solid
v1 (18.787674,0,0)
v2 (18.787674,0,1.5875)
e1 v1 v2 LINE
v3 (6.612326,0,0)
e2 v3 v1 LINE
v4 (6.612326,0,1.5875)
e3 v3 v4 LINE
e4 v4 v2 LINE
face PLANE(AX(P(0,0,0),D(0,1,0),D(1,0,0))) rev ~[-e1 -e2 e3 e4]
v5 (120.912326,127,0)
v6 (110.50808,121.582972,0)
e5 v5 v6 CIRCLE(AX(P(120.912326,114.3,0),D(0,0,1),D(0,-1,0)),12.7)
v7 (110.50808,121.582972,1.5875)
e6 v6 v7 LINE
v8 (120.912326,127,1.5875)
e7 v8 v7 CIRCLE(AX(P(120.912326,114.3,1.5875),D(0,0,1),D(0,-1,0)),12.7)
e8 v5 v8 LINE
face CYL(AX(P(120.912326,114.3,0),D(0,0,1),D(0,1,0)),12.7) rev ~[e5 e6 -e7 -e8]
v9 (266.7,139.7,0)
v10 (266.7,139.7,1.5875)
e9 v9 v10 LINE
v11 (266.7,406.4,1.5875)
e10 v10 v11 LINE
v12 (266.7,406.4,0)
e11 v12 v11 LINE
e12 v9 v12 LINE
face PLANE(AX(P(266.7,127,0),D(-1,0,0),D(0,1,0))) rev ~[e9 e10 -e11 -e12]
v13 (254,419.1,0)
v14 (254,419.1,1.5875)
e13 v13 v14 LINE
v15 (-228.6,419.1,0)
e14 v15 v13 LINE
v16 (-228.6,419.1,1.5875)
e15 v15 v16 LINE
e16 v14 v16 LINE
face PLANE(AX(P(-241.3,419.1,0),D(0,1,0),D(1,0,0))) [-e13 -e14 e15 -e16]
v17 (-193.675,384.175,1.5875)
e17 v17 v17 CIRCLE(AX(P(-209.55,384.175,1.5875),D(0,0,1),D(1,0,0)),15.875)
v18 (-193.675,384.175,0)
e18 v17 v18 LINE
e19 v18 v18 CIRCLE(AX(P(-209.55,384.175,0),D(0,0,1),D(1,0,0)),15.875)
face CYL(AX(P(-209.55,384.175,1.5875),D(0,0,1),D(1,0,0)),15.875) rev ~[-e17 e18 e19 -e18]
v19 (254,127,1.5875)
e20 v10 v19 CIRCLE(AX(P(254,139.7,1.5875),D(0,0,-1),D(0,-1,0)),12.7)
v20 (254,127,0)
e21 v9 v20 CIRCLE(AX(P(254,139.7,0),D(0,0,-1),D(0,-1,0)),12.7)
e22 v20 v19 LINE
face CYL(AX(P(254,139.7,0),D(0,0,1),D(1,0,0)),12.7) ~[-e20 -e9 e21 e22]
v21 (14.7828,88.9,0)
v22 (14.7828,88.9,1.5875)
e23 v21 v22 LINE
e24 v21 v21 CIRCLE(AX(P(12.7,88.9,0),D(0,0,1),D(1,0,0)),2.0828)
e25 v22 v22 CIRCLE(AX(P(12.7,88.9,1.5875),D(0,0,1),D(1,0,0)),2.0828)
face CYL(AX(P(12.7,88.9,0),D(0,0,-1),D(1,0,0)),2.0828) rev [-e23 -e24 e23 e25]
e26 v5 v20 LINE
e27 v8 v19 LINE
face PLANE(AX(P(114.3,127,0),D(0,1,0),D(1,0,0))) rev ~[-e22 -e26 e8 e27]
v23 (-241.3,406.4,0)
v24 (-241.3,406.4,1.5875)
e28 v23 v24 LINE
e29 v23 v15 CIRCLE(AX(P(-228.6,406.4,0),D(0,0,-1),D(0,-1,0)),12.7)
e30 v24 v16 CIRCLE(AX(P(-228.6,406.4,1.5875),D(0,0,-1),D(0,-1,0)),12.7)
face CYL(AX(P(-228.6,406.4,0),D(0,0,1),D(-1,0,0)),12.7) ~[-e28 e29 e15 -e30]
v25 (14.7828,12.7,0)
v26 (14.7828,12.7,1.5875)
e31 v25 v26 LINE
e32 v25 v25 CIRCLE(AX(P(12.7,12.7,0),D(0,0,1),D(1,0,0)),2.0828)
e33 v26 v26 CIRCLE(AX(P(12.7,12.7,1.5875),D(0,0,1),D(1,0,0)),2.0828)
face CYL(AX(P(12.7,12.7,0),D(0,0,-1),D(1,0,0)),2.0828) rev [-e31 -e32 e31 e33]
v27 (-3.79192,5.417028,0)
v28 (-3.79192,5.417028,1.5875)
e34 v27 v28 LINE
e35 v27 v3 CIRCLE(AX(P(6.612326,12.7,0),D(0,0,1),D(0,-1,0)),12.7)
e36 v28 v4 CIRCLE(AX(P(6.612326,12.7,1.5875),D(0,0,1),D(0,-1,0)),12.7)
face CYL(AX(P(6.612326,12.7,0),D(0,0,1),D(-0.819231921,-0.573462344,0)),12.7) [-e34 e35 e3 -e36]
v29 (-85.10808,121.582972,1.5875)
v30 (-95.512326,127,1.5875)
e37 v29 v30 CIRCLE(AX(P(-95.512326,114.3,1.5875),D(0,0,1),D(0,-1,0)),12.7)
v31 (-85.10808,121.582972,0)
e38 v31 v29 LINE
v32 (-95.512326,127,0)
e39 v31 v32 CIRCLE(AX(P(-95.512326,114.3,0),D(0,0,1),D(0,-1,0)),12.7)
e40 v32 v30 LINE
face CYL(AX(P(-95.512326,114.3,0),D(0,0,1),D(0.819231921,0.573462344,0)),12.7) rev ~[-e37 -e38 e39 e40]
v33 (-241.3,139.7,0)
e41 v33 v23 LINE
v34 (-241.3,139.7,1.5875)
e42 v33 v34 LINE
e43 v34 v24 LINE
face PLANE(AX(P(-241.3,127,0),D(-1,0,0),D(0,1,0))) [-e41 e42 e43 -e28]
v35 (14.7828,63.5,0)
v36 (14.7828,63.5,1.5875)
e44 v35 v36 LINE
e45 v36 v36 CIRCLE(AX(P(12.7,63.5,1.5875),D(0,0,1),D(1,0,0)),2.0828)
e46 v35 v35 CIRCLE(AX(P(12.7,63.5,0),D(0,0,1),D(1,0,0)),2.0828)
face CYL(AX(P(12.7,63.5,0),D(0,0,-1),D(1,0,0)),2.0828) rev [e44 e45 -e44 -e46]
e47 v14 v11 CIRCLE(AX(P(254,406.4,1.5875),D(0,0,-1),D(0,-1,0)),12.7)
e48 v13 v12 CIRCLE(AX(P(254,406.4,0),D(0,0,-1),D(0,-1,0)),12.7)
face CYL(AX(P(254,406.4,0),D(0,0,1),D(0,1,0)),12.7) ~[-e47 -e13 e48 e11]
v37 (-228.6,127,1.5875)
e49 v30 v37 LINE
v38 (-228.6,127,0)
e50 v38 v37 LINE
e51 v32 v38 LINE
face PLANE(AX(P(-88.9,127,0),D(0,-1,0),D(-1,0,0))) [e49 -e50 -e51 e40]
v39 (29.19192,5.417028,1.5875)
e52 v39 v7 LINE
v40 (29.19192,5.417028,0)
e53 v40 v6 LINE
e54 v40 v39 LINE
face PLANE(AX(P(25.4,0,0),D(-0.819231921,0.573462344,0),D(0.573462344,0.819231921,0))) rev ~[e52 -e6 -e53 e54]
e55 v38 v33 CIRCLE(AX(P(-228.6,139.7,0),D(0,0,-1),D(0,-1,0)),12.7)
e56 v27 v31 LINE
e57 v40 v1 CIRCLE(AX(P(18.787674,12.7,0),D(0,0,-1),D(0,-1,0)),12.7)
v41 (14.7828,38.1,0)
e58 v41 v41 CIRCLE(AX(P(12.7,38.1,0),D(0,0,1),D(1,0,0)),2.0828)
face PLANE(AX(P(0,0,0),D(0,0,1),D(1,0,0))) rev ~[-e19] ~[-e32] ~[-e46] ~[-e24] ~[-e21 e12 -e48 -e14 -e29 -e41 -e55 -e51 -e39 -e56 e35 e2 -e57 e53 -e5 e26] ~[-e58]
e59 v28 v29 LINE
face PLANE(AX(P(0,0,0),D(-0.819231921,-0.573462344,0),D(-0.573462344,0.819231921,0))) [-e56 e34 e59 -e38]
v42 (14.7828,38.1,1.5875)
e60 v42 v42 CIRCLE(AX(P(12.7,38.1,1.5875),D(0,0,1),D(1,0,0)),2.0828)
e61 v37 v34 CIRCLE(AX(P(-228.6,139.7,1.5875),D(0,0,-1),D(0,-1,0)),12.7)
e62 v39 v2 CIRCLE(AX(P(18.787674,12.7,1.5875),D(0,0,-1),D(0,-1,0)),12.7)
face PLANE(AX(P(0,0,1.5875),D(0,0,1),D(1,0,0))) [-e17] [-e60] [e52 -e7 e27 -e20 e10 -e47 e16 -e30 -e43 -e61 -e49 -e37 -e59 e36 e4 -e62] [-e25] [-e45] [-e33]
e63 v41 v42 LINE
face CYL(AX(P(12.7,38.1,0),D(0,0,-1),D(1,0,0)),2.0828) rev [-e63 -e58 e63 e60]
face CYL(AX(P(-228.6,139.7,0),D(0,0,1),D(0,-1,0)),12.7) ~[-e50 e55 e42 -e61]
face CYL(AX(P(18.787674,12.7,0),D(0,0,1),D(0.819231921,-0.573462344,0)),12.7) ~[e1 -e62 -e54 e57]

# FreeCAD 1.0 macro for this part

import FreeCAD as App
import Part
import Sketcher

V = App.Vector
Q = App.Units.Quantity


def edges_at(feature, points):
    """Names of the edges that pass closest to the given points."""
    edges = feature.Shape.Edges
    near = lambda p: min(range(len(edges)), key=lambda i: edges[i].distToShape(Part.Vertex(*p))[0])
    return sorted({f"Edge{near(p) + 1}" for p in points})


def add_polygon(sketch, points):
    """Adds a closed chain of lines whose ends are joined by coincident constraints."""
    first, n = sketch.GeometryCount, len(points)
    for a, b in zip(points, points[1:] + points[:1]):
        sketch.addGeometry(Part.LineSegment(App.Vector(*a, 0), App.Vector(*b, 0)), False)
    for i in range(n):
        sketch.addConstraint(Sketcher.Constraint("Coincident", first + i, 2, first + (i + 1) % n, 1))

doc = App.newDocument("Part")
body = doc.addObject("PartDesign::Body", "Body")

# Sketch on XY plane
sketch1 = body.newObject("Sketcher::SketchObject", "Sketch")
sketch1.AttachmentSupport = (doc.getObject("XY_Plane"), [""])
sketch1.MapMode = "FlatFace"
add_polygon(sketch1, [(-88.9, 127), (0, 0), (25.4, 0), (114.3, 127), (266.7, 127), (266.7, 419.1), (-241.3, 419.1), (-241.3, 127)])  # lines 0-7
sketch1.addGeometry(Part.Circle(V(12.7, 12.7, 0), V(0, 0, 1), 2.1), False)  # 8
sketch1.addGeometry(Part.Circle(V(12.7, 38.1, 0), V(0, 0, 1), 2.1), False)  # 9
sketch1.addGeometry(Part.Circle(V(12.7, 63.5, 0), V(0, 0, 1), 2.1), False)  # 10
sketch1.addGeometry(Part.Circle(V(12.7, 88.9, 0), V(0, 0, 1), 2.1), False)  # 11
sketch1.addConstraint([
    Sketcher.Constraint("Horizontal", 1),
    Sketcher.Constraint("Horizontal", 3),
    Sketcher.Constraint("Vertical", 4),
    Sketcher.Constraint("Horizontal", 5),
    Sketcher.Constraint("Vertical", 6),
    Sketcher.Constraint("Horizontal", 7),
    Sketcher.Constraint("Coincident", 0, 2, -1, 1),
    Sketcher.Constraint("Equal", 8, 9),
    Sketcher.Constraint("Equal", 9, 10),
    Sketcher.Constraint("Equal", 10, 11),
    Sketcher.Constraint("Horizontal", 3, 2, 6, 2),
    Sketcher.Constraint("Vertical", 8, 3, 9, 3),
    Sketcher.Constraint("Vertical", 9, 3, 10, 3),
    Sketcher.Constraint("Vertical", 10, 3, 11, 3),
    Sketcher.Constraint("Equal", 3, 7),
    Sketcher.Constraint("Equal", 0, 2),
    Sketcher.Constraint("DistanceX", 1, 1, 1, 2, Q("1 in")),
    Sketcher.Constraint("DistanceX", 3, 1, 3, 2, Q("6 in")),
    Sketcher.Constraint("Diameter", 8, Q("0.164 in")),
    Sketcher.Constraint("DistanceY", -1, 1, 2, 2, Q("5 in")),
    Sketcher.Constraint("DistanceY", 8, 3, 9, 3, Q("1 in")),
    Sketcher.Constraint("DistanceY", 9, 3, 10, 3, Q("1 in")),
    Sketcher.Constraint("DistanceY", 10, 3, 11, 3, Q("1 in")),
    Sketcher.Constraint("DistanceX", 11, 3, 3, 2, Q("10 in")),
    Sketcher.Constraint("DistanceX", 5, 2, 11, 3, Q("10 in")),
    Sketcher.Constraint("DistanceY", -1, 1, 8, 3, Q("0.5 in")),
    Sketcher.Constraint("DistanceY", -1, 1, 4, 2, Q("16.5 in")),
])
pad1 = body.newObject("PartDesign::Pad", "Pad")
pad1.Profile = sketch1
pad1.Length = Q("0.0625 in")
doc.recompute()

fillet = body.newObject("PartDesign::Fillet", "Fillet")
fillet.Base = (pad1, edges_at(pad1, [
    (25.4, 0, 0.794),
    (114.3, 127, 0.794),
    (266.7, 127, 0.794),
    (266.7, 419.1, 0.794),
    (-241.3, 419.1, 0.794),
    (-241.3, 127, 0.794),
    (-88.9, 127, 0.794),
    (0, 0, 0.794),
]))
fillet.Radius = Q("0.5 in")

# Sketch on XY plane
sketch2 = body.newObject("Sketcher::SketchObject", "Sketch001")
sketch2.AttachmentSupport = (doc.getObject("XY_Plane"), [""])
sketch2.MapMode = "FlatFace"
sketch2.AttachmentOffset = App.Placement(V(0, 0, 0.0625 * 25.4), App.Rotation())
sketch2.addGeometry(Part.Circle(V(-210, 384, 0), V(0, 0, 1), 16), False)
sketch2.addConstraint([
    Sketcher.Constraint("Diameter", 0, Q("1.25 in")),
    Sketcher.Constraint("DistanceX", 0, 3, -1, 1, Q("8.25 in")),
    Sketcher.Constraint("DistanceY", -1, 1, 0, 3, Q("15.125 in")),
])
pocket1 = body.newObject("PartDesign::Pocket", "Pocket")
pocket1.Profile = sketch2
pocket1.Length = Q("0.0625 in")

doc.recompute()
